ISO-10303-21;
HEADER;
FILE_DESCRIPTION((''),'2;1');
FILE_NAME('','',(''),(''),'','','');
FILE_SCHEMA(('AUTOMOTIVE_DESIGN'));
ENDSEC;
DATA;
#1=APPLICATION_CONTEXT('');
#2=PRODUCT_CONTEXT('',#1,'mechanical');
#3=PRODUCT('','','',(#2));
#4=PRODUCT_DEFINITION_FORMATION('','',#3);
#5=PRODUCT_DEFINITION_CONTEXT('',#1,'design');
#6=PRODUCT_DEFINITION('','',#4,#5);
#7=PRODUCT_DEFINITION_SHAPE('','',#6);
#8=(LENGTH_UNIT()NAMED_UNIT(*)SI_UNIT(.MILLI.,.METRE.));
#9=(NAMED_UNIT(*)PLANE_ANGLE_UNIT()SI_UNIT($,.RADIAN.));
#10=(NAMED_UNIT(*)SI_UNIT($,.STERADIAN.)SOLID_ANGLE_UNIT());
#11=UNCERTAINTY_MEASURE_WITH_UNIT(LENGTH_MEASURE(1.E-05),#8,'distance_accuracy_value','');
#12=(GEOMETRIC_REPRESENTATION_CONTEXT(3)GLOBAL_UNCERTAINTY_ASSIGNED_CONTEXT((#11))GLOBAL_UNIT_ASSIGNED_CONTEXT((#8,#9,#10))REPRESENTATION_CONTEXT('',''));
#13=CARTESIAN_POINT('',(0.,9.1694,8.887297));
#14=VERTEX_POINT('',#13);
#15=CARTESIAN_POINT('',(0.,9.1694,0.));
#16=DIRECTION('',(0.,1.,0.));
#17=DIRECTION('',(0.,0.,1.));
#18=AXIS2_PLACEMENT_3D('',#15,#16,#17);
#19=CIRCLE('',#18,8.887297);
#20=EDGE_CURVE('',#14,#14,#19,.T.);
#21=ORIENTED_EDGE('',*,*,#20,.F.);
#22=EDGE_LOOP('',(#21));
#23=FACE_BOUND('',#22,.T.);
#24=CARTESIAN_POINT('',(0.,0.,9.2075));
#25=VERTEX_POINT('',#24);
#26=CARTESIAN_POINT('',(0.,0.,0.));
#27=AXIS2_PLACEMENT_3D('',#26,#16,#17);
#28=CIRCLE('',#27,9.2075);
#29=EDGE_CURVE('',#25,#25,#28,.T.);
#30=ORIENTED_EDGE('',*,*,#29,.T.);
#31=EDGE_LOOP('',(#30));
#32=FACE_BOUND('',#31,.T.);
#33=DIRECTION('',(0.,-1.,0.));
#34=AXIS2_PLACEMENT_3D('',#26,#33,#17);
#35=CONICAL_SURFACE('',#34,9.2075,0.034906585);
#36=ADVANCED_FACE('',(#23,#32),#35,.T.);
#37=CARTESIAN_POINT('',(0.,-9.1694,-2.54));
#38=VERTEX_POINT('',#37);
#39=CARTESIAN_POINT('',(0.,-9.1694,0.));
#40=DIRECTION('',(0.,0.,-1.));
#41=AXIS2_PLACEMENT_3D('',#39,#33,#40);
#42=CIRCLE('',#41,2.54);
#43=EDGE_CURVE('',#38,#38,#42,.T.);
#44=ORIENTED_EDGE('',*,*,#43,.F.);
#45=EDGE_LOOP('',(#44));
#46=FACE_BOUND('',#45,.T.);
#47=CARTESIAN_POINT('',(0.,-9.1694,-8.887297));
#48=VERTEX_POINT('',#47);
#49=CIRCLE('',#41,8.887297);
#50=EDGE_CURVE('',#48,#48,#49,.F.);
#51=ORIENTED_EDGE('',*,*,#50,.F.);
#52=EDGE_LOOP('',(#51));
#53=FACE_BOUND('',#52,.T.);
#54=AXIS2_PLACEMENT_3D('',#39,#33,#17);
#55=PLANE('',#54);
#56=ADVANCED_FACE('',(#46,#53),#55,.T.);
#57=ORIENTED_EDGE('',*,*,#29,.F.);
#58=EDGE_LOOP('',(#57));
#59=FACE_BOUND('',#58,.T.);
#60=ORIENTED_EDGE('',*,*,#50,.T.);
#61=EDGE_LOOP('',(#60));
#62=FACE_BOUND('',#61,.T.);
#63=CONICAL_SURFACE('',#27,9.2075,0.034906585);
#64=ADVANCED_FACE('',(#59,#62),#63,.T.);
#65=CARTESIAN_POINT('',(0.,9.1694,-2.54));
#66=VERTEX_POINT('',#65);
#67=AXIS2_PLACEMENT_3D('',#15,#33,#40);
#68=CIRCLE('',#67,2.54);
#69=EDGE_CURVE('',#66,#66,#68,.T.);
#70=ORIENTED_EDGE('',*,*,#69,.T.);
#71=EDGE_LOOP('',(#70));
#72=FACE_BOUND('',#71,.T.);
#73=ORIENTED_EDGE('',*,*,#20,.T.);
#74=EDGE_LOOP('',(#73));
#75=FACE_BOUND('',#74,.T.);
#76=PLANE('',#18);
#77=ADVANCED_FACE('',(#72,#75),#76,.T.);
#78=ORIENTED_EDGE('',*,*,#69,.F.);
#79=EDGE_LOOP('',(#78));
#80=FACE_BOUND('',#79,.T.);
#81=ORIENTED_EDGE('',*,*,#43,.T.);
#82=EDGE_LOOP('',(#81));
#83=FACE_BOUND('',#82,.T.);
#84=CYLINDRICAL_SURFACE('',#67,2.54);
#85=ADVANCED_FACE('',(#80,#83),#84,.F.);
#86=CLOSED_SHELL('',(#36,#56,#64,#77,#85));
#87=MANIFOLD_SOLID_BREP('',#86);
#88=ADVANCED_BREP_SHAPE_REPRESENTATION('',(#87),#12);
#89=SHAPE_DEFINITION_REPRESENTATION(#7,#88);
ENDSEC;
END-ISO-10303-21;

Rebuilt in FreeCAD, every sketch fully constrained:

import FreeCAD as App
import Part
import Sketcher

V = App.Vector
Q = App.Units.Quantity

doc = App.newDocument("Part")
body = doc.addObject("PartDesign::Body", "Body")

# Sketch on XZ plane
sketch1 = doc.addObject("Sketcher::SketchObject", "Sketch")
body.addObject(sketch1)
sketch1.AttachmentSupport = (doc.XZ_Plane, [""])
sketch1.MapMode = "FlatFace"
sketch1.addGeometry(Part.Circle(V(0, 0, 0), V(0, 0, 1), 9), False)
sketch1.addConstraint(Sketcher.Constraint("Coincident", 0, 3, -1, 1))
sketch1.addConstraint(Sketcher.Constraint("Diameter", 0, Q("0.725 in")))
pad1 = doc.addObject("PartDesign::Pad", "Pad")
body.addObject(pad1)
pad1.Profile = sketch1
pad1.Length = Q("0.361 in")
pad1.Reversed = True
pad1.TaperAngle = -2
doc.recompute()

mirrored = doc.addObject("PartDesign::Mirrored", "Mirrored")
body.addObject(mirrored)
mirrored.Originals = [pad1]
mirrored.MirrorPlane = (doc.XZ_Plane, [""])
body.Tip = mirrored

# Sketch on XZ plane
sketch2 = doc.addObject("Sketcher::SketchObject", "Sketch001")
body.addObject(sketch2)
sketch2.AttachmentSupport = (doc.XZ_Plane, [""])
sketch2.MapMode = "FlatFace"
sketch2.AttachmentOffset = App.Placement(V(0, 0, 0.361 * 25.4), App.Rotation())
sketch2.addGeometry(Part.Circle(V(0, 0, 0), V(0, 0, 1), 2.5), False)
sketch2.addConstraint(Sketcher.Constraint("Coincident", 0, 3, -1, 1))
sketch2.addConstraint(Sketcher.Constraint("Diameter", 0, Q("0.2 in")))
pocket1 = doc.addObject("PartDesign::Pocket", "Pocket")
body.addObject(pocket1)
pocket1.Profile = sketch2
pocket1.Type = "ThroughAll"

doc.recompute()
